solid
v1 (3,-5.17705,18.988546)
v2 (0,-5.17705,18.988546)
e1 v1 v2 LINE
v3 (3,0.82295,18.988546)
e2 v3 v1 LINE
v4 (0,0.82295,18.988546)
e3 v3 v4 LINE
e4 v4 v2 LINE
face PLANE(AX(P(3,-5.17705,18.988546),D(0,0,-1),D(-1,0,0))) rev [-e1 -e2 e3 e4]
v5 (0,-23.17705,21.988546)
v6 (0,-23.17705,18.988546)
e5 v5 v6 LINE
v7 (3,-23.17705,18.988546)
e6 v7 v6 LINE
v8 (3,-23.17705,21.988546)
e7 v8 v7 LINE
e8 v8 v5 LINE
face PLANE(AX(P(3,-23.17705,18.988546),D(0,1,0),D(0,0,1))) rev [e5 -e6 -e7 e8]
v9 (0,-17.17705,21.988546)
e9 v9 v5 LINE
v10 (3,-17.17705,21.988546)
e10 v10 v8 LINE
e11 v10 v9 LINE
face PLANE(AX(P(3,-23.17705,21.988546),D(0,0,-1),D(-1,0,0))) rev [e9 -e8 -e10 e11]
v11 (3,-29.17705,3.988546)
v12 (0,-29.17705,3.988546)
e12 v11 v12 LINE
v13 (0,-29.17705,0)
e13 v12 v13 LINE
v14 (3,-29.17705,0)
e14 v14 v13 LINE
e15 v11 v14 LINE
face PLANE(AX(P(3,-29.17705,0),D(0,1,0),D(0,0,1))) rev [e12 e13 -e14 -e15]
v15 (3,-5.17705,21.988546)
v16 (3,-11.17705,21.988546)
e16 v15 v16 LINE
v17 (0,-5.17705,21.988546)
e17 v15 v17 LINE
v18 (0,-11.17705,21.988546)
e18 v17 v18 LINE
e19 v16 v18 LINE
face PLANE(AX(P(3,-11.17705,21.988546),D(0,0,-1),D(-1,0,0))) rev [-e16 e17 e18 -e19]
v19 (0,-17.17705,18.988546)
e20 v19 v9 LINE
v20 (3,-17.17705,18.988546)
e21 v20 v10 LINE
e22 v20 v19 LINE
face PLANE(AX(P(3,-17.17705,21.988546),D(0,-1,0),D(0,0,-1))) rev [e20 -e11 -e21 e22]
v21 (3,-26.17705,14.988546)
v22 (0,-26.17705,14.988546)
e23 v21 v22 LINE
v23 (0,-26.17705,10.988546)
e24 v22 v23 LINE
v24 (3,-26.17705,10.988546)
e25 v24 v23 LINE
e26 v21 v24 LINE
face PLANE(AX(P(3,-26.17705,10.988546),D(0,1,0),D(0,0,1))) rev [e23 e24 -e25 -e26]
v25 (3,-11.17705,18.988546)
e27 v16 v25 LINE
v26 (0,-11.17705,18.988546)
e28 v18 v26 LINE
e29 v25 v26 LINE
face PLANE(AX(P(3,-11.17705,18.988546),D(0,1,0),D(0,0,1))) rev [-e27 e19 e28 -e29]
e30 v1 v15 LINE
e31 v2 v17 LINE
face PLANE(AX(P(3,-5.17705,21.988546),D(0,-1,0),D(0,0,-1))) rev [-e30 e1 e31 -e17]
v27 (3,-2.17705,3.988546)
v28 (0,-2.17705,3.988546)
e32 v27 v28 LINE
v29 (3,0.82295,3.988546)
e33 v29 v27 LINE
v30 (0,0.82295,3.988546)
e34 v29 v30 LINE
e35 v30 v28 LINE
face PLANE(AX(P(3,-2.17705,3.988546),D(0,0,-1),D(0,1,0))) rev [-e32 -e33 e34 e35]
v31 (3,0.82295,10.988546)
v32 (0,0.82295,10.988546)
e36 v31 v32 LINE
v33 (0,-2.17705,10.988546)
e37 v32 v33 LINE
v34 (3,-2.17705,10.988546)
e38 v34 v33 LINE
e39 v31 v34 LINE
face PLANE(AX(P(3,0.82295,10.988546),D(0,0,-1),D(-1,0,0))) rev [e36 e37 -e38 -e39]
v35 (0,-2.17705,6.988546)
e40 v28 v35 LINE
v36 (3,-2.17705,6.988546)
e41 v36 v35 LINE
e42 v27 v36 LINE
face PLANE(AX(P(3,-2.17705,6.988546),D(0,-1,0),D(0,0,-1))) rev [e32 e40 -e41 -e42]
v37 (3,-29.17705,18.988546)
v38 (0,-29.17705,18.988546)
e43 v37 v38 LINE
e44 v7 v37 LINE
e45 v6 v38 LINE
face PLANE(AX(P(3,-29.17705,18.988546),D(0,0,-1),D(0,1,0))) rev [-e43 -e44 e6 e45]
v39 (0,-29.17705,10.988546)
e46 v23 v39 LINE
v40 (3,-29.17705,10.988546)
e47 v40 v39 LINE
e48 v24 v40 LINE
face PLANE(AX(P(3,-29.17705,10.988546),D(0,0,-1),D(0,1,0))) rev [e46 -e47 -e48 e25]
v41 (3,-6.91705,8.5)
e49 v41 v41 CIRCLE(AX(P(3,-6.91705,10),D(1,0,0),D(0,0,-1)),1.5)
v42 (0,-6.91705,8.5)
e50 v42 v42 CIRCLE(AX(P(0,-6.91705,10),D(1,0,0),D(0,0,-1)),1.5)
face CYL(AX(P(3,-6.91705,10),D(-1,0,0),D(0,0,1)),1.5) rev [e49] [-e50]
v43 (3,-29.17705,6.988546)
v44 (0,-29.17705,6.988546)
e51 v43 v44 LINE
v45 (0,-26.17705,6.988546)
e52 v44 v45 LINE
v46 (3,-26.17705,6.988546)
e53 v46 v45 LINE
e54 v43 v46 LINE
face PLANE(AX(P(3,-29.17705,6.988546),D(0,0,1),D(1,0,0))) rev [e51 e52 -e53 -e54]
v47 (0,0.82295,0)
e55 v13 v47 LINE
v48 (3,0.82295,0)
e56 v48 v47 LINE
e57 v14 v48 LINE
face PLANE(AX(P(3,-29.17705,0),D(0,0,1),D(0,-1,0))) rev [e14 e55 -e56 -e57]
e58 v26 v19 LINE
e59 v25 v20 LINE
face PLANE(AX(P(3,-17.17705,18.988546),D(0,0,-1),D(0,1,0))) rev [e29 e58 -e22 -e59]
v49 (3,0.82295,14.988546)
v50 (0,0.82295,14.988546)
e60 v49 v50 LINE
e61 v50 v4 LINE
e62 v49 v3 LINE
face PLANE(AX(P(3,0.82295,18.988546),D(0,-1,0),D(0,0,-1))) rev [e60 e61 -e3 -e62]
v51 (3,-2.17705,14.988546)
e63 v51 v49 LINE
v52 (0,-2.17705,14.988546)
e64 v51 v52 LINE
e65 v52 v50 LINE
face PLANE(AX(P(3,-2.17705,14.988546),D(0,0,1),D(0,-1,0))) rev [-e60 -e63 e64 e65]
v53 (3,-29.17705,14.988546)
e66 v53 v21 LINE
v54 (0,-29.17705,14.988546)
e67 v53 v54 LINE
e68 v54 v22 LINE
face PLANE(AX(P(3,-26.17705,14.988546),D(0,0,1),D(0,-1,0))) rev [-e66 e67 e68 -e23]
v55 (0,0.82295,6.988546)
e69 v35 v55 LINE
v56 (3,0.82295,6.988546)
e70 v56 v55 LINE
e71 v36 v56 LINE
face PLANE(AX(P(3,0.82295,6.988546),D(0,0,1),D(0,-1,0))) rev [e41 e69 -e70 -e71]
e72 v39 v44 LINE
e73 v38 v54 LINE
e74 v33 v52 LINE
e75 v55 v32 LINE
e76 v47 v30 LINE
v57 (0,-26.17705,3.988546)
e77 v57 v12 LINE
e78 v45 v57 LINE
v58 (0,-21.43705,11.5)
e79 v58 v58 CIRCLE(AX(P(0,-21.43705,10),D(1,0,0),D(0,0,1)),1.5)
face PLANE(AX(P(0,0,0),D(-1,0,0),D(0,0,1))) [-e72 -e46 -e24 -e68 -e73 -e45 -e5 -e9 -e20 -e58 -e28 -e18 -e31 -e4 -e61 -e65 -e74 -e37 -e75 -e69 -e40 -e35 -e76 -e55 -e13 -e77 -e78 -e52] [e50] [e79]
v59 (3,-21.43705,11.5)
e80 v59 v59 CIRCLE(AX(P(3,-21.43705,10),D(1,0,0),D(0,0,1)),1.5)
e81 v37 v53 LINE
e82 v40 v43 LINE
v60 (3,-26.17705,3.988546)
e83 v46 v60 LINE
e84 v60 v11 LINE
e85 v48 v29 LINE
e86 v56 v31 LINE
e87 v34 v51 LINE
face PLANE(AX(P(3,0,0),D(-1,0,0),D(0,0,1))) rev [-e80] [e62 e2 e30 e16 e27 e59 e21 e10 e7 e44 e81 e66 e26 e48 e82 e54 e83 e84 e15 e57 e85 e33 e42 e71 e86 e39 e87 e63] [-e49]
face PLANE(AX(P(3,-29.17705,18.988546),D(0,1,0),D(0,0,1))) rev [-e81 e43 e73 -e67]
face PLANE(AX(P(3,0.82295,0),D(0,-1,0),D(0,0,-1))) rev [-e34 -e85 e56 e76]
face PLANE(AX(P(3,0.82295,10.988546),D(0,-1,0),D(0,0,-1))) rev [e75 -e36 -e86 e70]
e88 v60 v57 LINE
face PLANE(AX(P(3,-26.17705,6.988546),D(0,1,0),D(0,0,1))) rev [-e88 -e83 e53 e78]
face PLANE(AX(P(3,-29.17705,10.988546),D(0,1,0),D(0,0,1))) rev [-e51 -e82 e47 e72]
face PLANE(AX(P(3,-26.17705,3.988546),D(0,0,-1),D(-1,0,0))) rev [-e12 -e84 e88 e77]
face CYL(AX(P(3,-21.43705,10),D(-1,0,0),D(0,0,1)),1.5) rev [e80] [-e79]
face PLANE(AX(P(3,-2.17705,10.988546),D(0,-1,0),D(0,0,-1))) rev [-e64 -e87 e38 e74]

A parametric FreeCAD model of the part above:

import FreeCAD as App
import Part
import Sketcher
Q = App.Units.Quantity

doc = App.newDocument("Part")
body = doc.addObject("PartDesign::Body", "Body")

sketch1 = doc.addObject("Sketcher::SketchObject", "Sketch")
body.addObject(sketch1)
sketch1.AttachmentSupport = (doc.YZ_Plane, [""])
sketch1.MapMode = "FlatFace"
sketch1.addGeometry([
    Part.LineSegment(App.Vector(-29.2, 4, 0), App.Vector(-29.2, 0, 0)),
    Part.LineSegment(App.Vector(-29.2, 0, 0), App.Vector(0.8, 0, 0)),
    Part.LineSegment(App.Vector(0.8, 0, 0), App.Vector(0.8, 4, 0)),
    Part.LineSegment(App.Vector(0.8, 4, 0), App.Vector(-2.2, 4, 0)),
    Part.LineSegment(App.Vector(-2.2, 4, 0), App.Vector(-2.2, 7, 0)),
    Part.LineSegment(App.Vector(-2.2, 7, 0), App.Vector(0.8, 7, 0)),
    Part.LineSegment(App.Vector(0.8, 7, 0), App.Vector(0.8, 11, 0)),
    Part.LineSegment(App.Vector(0.8, 11, 0), App.Vector(-2.2, 11, 0)),
    Part.LineSegment(App.Vector(-2.2, 11, 0), App.Vector(-2.2, 15, 0)),
    Part.LineSegment(App.Vector(-2.2, 15, 0), App.Vector(0.8, 15, 0)),
    Part.LineSegment(App.Vector(0.8, 15, 0), App.Vector(0.8, 19, 0)),
    Part.LineSegment(App.Vector(0.8, 19, 0), App.Vector(-5.2, 19, 0)),
    Part.LineSegment(App.Vector(-5.2, 19, 0), App.Vector(-5.2, 22, 0)),
    Part.LineSegment(App.Vector(-5.2, 22, 0), App.Vector(-11.2, 22, 0)),
    Part.LineSegment(App.Vector(-11.2, 22, 0), App.Vector(-11.2, 19, 0)),
    Part.LineSegment(App.Vector(-11.2, 19, 0), App.Vector(-17.2, 19, 0)),
    Part.LineSegment(App.Vector(-17.2, 19, 0), App.Vector(-17.2, 22, 0)),
    Part.LineSegment(App.Vector(-17.2, 22, 0), App.Vector(-23.2, 22, 0)),
    Part.LineSegment(App.Vector(-23.2, 22, 0), App.Vector(-23.2, 19, 0)),
    Part.LineSegment(App.Vector(-23.2, 19, 0), App.Vector(-29.2, 19, 0)),
    Part.LineSegment(App.Vector(-29.2, 19, 0), App.Vector(-29.2, 15, 0)),
    Part.LineSegment(App.Vector(-29.2, 15, 0), App.Vector(-26.2, 15, 0)),
    Part.LineSegment(App.Vector(-26.2, 15, 0), App.Vector(-26.2, 11, 0)),
    Part.LineSegment(App.Vector(-26.2, 11, 0), App.Vector(-29.2, 11, 0)),
    Part.LineSegment(App.Vector(-29.2, 11, 0), App.Vector(-29.2, 7, 0)),
    Part.LineSegment(App.Vector(-29.2, 7, 0), App.Vector(-26.2, 7, 0)),
    Part.LineSegment(App.Vector(-26.2, 7, 0), App.Vector(-26.2, 4, 0)),
    Part.LineSegment(App.Vector(-26.2, 4, 0), App.Vector(-29.2, 4, 0)),
    Part.Circle(App.Vector(-21.4, 10, 0), App.Vector(0, 0, 1), 1.5),
    Part.Circle(App.Vector(-6.9, 10, 0), App.Vector(0, 0, 1), 1.5),
], False)
sketch1.addConstraint([
    Sketcher.Constraint("Coincident", 0, 2, 1, 1),
    Sketcher.Constraint("Coincident", 1, 2, 2, 1),
    Sketcher.Constraint("Coincident", 2, 2, 3, 1),
    Sketcher.Constraint("Coincident", 3, 2, 4, 1),
    Sketcher.Constraint("Coincident", 4, 2, 5, 1),
    Sketcher.Constraint("Coincident", 5, 2, 6, 1),
    Sketcher.Constraint("Coincident", 6, 2, 7, 1),
    Sketcher.Constraint("Coincident", 7, 2, 8, 1),
    Sketcher.Constraint("Coincident", 8, 2, 9, 1),
    Sketcher.Constraint("Coincident", 9, 2, 10, 1),
    Sketcher.Constraint("Coincident", 10, 2, 11, 1),
    Sketcher.Constraint("Coincident", 11, 2, 12, 1),
    Sketcher.Constraint("Coincident", 12, 2, 13, 1),
    Sketcher.Constraint("Coincident", 13, 2, 14, 1),
    Sketcher.Constraint("Coincident", 14, 2, 15, 1),
    Sketcher.Constraint("Coincident", 15, 2, 16, 1),
    Sketcher.Constraint("Coincident", 16, 2, 17, 1),
    Sketcher.Constraint("Coincident", 17, 2, 18, 1),
    Sketcher.Constraint("Coincident", 18, 2, 19, 1),
    Sketcher.Constraint("Coincident", 19, 2, 20, 1),
    Sketcher.Constraint("Coincident", 20, 2, 21, 1),
    Sketcher.Constraint("Coincident", 21, 2, 22, 1),
    Sketcher.Constraint("Coincident", 22, 2, 23, 1),
    Sketcher.Constraint("Coincident", 23, 2, 24, 1),
    Sketcher.Constraint("Coincident", 24, 2, 25, 1),
    Sketcher.Constraint("Coincident", 25, 2, 26, 1),
    Sketcher.Constraint("Coincident", 26, 2, 27, 1),
    Sketcher.Constraint("Coincident", 27, 2, 0, 1),
    Sketcher.Constraint("Vertical", 0),
    Sketcher.Constraint("Horizontal", 1),
    Sketcher.Constraint("Vertical", 2),
    Sketcher.Constraint("Horizontal", 3),
    Sketcher.Constraint("Vertical", 4),
    Sketcher.Constraint("Horizontal", 5),
    Sketcher.Constraint("Vertical", 6),
    Sketcher.Constraint("Horizontal", 7),
    Sketcher.Constraint("Vertical", 8),
    Sketcher.Constraint("Horizontal", 9),
    Sketcher.Constraint("Vertical", 10),
    Sketcher.Constraint("Horizontal", 11),
    Sketcher.Constraint("Vertical", 12),
    Sketcher.Constraint("Horizontal", 13),
    Sketcher.Constraint("Vertical", 14),
    Sketcher.Constraint("Horizontal", 15),
    Sketcher.Constraint("Vertical", 16),
    Sketcher.Constraint("Horizontal", 17),
    Sketcher.Constraint("Vertical", 18),
    Sketcher.Constraint("Horizontal", 19),
    Sketcher.Constraint("Vertical", 20),
    Sketcher.Constraint("Horizontal", 21),
    Sketcher.Constraint("Vertical", 22),
    Sketcher.Constraint("Horizontal", 23),
    Sketcher.Constraint("Vertical", 24),
    Sketcher.Constraint("Horizontal", 25),
    Sketcher.Constraint("Vertical", 26),
    Sketcher.Constraint("Horizontal", 27),
    Sketcher.Constraint("Equal", 28, 29),
    Sketcher.Constraint("PointOnObject", 0, 2, -1),
    Sketcher.Constraint("Horizontal", 28, 3, 29, 3),
    Sketcher.Constraint("Horizontal", 11, 2, 14, 2),
    Sketcher.Constraint("Horizontal", 13, 2, 16, 2),
    Sketcher.Constraint("Horizontal", 15, 2, 18, 2),
    Sketcher.Constraint("Horizontal", 9, 2, 20, 2),
    Sketcher.Constraint("Horizontal", 7, 2, 22, 2),
    Sketcher.Constraint("Horizontal", 5, 2, 24, 2),
    Sketcher.Constraint("Horizontal", 3, 2, 26, 2),
    Sketcher.Constraint("Vertical", 2, 2, 5, 2),
    Sketcher.Constraint("Vertical", 4, 2, 7, 2),
    Sketcher.Constraint("Vertical", 6, 2, 9, 2),
    Sketcher.Constraint("Vertical", 0, 2, 19, 2),
    Sketcher.Constraint("Vertical", 20, 2, 23, 2),
    Sketcher.Constraint("Vertical", 22, 2, 25, 2),
    Sketcher.Constraint("Equal", 11, 13),
    Sketcher.Constraint("Equal", 13, 15),
    Sketcher.Constraint("Equal", 15, 17),
    Sketcher.Constraint("Equal", 17, 19),
    Sketcher.Constraint("Equal", 9, 21),
    Sketcher.Constraint("Equal", 27, 4),
    Sketcher.Constraint("Equal", 6, 8),
    Sketcher.Constraint("Equal", 8, 10),
    Sketcher.Constraint("Equal", 4, 12),
    Sketcher.Constraint("Diameter", 28, Q("3 mm")),
    Sketcher.Constraint("DistanceX", 1, 1, 1, 2, Q("30 mm")),
    Sketcher.Constraint("DistanceX", 3, 2, 3, 1, Q("3 mm")),
    Sketcher.Constraint("DistanceY", 6, 1, 6, 2, Q("4 mm")),
    Sketcher.Constraint("DistanceY", -1, 1, 28, 3, Q("10 mm")),
    Sketcher.Constraint("DistanceX", 28, 3, 29, 3, Q("14.52 mm")),
    Sketcher.Constraint("DistanceX", 0, 2, 28, 3, Q("7.74 mm")),
    Sketcher.Constraint("DistanceY", 0, 2, 0, 1, Q("3.988546 mm")),
    Sketcher.Constraint("DistanceX", 28, 3, -1, 1, Q("21.43705 mm")),
])
pad1 = doc.addObject("PartDesign::Pad", "Pad")
body.addObject(pad1)
pad1.Profile = sketch1
pad1.Length = 3

doc.recompute()
